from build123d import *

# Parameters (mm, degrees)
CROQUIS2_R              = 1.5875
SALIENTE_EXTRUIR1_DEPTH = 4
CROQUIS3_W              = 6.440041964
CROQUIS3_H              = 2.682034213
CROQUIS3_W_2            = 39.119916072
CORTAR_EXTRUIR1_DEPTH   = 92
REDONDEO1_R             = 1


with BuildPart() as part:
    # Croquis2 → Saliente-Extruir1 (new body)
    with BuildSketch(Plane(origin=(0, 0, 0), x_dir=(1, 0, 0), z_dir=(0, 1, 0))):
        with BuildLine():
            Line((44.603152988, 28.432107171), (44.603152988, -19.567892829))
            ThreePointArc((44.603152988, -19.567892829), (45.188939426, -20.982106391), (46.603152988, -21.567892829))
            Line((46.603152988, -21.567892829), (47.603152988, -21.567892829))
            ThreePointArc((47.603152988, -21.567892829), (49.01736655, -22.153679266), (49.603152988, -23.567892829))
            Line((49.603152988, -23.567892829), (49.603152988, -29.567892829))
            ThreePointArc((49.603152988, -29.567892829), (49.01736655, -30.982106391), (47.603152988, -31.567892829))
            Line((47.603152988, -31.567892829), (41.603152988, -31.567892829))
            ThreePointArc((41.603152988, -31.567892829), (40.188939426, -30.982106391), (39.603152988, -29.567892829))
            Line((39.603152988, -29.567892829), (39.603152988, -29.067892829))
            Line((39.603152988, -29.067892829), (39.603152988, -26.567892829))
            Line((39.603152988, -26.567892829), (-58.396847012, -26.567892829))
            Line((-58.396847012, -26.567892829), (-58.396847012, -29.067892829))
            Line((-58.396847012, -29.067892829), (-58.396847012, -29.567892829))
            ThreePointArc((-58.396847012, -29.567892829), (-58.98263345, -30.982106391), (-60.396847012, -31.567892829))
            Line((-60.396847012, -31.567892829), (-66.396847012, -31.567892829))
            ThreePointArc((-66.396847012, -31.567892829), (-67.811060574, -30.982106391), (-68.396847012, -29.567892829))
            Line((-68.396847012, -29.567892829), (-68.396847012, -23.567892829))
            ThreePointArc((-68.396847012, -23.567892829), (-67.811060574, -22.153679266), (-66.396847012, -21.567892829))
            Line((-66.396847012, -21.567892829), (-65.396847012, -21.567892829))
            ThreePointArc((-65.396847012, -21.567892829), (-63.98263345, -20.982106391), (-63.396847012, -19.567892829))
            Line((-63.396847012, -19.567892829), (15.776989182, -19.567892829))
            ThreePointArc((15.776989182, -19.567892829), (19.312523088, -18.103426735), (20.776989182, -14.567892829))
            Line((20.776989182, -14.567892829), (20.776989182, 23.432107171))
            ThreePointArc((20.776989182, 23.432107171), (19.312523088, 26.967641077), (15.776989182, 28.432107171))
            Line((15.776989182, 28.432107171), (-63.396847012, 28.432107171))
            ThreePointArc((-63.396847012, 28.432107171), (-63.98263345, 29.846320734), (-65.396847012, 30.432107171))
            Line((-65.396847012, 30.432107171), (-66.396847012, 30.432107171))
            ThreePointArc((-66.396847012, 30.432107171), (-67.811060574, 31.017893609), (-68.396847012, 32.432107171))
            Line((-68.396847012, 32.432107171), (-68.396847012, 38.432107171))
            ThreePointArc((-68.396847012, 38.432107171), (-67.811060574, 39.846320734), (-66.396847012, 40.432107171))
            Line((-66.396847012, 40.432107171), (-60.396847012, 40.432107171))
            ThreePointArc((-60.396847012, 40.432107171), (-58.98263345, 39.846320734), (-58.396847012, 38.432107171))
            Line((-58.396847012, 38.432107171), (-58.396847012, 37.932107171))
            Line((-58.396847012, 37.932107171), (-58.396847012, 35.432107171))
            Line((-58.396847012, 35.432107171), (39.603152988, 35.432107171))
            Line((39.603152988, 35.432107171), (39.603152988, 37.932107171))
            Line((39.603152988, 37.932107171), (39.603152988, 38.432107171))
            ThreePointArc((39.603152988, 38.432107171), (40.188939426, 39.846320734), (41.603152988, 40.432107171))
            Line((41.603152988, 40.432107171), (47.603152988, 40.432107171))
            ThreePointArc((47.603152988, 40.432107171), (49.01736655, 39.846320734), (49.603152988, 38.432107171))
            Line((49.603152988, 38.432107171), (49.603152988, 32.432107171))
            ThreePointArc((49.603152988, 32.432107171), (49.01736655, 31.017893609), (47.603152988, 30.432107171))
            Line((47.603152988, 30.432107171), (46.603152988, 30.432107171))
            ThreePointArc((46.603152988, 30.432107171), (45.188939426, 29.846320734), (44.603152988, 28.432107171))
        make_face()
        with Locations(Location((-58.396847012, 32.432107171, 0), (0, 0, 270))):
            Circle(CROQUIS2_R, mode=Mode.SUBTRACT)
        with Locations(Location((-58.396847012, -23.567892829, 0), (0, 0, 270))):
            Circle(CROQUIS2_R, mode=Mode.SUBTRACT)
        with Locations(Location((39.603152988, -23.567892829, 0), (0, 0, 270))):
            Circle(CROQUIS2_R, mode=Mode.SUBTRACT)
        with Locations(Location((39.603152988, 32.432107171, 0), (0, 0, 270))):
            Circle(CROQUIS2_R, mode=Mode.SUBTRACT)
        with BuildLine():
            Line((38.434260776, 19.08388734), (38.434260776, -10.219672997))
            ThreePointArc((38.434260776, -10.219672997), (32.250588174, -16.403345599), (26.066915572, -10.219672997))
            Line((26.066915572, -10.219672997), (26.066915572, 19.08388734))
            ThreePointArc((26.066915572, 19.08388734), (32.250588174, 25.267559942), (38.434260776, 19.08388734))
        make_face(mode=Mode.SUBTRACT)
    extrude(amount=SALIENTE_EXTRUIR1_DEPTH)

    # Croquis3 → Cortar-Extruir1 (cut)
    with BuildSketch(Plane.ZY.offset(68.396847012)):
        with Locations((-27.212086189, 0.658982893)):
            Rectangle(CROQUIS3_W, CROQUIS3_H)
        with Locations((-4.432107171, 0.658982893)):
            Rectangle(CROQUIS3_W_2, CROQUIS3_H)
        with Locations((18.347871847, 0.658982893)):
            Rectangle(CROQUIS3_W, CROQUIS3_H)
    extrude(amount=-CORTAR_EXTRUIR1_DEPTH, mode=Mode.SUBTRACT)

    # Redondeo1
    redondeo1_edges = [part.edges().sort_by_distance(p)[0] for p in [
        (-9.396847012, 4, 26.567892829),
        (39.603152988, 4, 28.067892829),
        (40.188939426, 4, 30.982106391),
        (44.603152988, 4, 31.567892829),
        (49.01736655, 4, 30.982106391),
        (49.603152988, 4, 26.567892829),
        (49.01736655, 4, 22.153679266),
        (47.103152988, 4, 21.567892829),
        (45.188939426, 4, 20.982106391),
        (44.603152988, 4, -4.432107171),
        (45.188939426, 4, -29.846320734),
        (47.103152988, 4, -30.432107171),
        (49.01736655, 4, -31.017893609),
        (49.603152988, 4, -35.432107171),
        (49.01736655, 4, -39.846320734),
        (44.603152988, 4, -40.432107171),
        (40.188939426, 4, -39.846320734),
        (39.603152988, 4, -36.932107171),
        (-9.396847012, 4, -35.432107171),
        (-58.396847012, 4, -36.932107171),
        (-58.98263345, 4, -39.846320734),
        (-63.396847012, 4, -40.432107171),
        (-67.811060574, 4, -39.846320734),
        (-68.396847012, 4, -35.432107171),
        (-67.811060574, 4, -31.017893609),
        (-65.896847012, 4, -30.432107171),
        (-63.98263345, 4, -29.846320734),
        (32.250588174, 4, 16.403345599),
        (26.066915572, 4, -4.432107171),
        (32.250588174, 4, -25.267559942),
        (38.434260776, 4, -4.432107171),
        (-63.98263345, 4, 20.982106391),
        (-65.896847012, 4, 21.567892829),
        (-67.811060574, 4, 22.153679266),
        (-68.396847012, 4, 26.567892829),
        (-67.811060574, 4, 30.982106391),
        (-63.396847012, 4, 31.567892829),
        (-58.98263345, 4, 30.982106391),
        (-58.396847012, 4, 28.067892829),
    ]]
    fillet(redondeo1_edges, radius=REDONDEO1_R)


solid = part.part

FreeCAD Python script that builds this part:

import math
import FreeCAD as App
import Part
import Sketcher

V = App.Vector


def edges_at(feature, points):
    """Names of the edges that pass closest to the given points."""
    edges = feature.Shape.Edges
    near = lambda p: min(range(len(edges)), key=lambda i: edges[i].distToShape(Part.Vertex(*p))[0])
    return sorted({f"Edge{near(p) + 1}" for p in points})

doc = App.newDocument("Part")
body = doc.addObject("PartDesign::Body", "Body")

# Sketch on XZ plane
sketch1 = body.newObject("Sketcher::SketchObject", "Sketch")
sketch1.AttachmentSupport = (doc.getObject("XZ_Plane"), [""])
sketch1.MapMode = "FlatFace"
sketch1.addGeometry([
    Part.LineSegment(V(44.603153, 19.567893, 0), V(44.603153, -28.432107, 0)),  # 0
    Part.ArcOfCircle(Part.Circle(V(46.603153, -28.432107, 0), V(0, 0, 1), 2), math.radians(180), math.radians(270)),  # 1
    Part.LineSegment(V(46.603153, -30.432107, 0), V(47.603153, -30.432107, 0)),  # 2
    Part.ArcOfCircle(Part.Circle(V(47.603153, -32.432107, 0), V(0, 0, 1), 2), math.radians(0), math.radians(90)),  # 3
    Part.LineSegment(V(49.603153, -32.432107, 0), V(49.603153, -38.432107, 0)),  # 4
    Part.ArcOfCircle(Part.Circle(V(47.603153, -38.432107, 0), V(0, 0, 1), 2), math.radians(-90), math.radians(0)),  # 5
    Part.LineSegment(V(47.603153, -40.432107, 0), V(41.603153, -40.432107, 0)),  # 6
    Part.ArcOfCircle(Part.Circle(V(41.603153, -38.432107, 0), V(0, 0, 1), 2), math.radians(180), math.radians(270)),  # 7
    Part.LineSegment(V(39.603153, -38.432107, 0), V(39.603153, -35.432107, 0)),  # 8
    Part.LineSegment(V(39.603153, -35.432107, 0), V(-58.396847, -35.432107, 0)),  # 9
    Part.LineSegment(V(-58.396847, -35.432107, 0), V(-58.396847, -38.432107, 0)),  # 10
    Part.ArcOfCircle(Part.Circle(V(-60.396847, -38.432107, 0), V(0, 0, 1), 2), math.radians(-90), math.radians(0)),  # 11
    Part.LineSegment(V(-60.396847, -40.432107, 0), V(-66.396847, -40.432107, 0)),  # 12
    Part.ArcOfCircle(Part.Circle(V(-66.396847, -38.432107, 0), V(0, 0, 1), 2), math.radians(180), math.radians(270)),  # 13
    Part.LineSegment(V(-68.396847, -38.432107, 0), V(-68.396847, -32.432107, 0)),  # 14
    Part.ArcOfCircle(Part.Circle(V(-66.396847, -32.432107, 0), V(0, 0, 1), 2), math.radians(90), math.radians(180)),  # 15
    Part.LineSegment(V(-66.396847, -30.432107, 0), V(-65.396847, -30.432107, 0)),  # 16
    Part.ArcOfCircle(Part.Circle(V(-65.396847, -28.432107, 0), V(0, 0, 1), 2), math.radians(-90), math.radians(0)),  # 17
    Part.LineSegment(V(-63.396847, -28.432107, 0), V(15.776989, -28.432107, 0)),  # 18
    Part.ArcOfCircle(Part.Circle(V(15.776989, -23.432107, 0), V(0, 0, 1), 5), math.radians(-90), math.radians(0)),  # 19
    Part.LineSegment(V(20.776989, -23.432107, 0), V(20.776989, 14.567893, 0)),  # 20
    Part.ArcOfCircle(Part.Circle(V(15.776989, 14.567893, 0), V(0, 0, 1), 5), math.radians(0), math.radians(90)),  # 21
    Part.LineSegment(V(15.776989, 19.567893, 0), V(-63.396847, 19.567893, 0)),  # 22
    Part.ArcOfCircle(Part.Circle(V(-65.396847, 19.567893, 0), V(0, 0, 1), 2), math.radians(0), math.radians(90)),  # 23
    Part.LineSegment(V(-65.396847, 21.567893, 0), V(-66.396847, 21.567893, 0)),  # 24
    Part.ArcOfCircle(Part.Circle(V(-66.396847, 23.567893, 0), V(0, 0, 1), 2), math.radians(180), math.radians(270)),  # 25
    Part.LineSegment(V(-68.396847, 23.567893, 0), V(-68.396847, 29.567893, 0)),  # 26
    Part.ArcOfCircle(Part.Circle(V(-66.396847, 29.567893, 0), V(0, 0, 1), 2), math.radians(90), math.radians(180)),  # 27
    Part.LineSegment(V(-66.396847, 31.567893, 0), V(-60.396847, 31.567893, 0)),  # 28
    Part.ArcOfCircle(Part.Circle(V(-60.396847, 29.567893, 0), V(0, 0, 1), 2), math.radians(0), math.radians(90)),  # 29
    Part.LineSegment(V(-58.396847, 29.567893, 0), V(-58.396847, 26.567893, 0)),  # 30
    Part.LineSegment(V(-58.396847, 26.567893, 0), V(39.603153, 26.567893, 0)),  # 31
    Part.LineSegment(V(39.603153, 26.567893, 0), V(39.603153, 29.567893, 0)),  # 32
    Part.ArcOfCircle(Part.Circle(V(41.603153, 29.567893, 0), V(0, 0, 1), 2), math.radians(90), math.radians(180)),  # 33
    Part.LineSegment(V(41.603153, 31.567893, 0), V(47.603153, 31.567893, 0)),  # 34
    Part.ArcOfCircle(Part.Circle(V(47.603153, 29.567893, 0), V(0, 0, 1), 2), math.radians(0), math.radians(90)),  # 35
    Part.LineSegment(V(49.603153, 29.567893, 0), V(49.603153, 23.567893, 0)),  # 36
    Part.ArcOfCircle(Part.Circle(V(47.603153, 23.567893, 0), V(0, 0, 1), 2), math.radians(-90), math.radians(0)),  # 37
    Part.LineSegment(V(47.603153, 21.567893, 0), V(46.603153, 21.567893, 0)),  # 38
    Part.ArcOfCircle(Part.Circle(V(46.603153, 19.567893, 0), V(0, 0, 1), 2), math.radians(90), math.radians(180)),  # 39
    Part.Circle(V(39.603153, 23.567893, 0), V(0, 0, 1), 1.5875),  # 40
    Part.Circle(V(-58.396847, 23.567893, 0), V(0, 0, 1), 1.5875),  # 41
    Part.LineSegment(V(38.434261, -19.083887, 0), V(38.434261, 10.219673, 0)),  # 42
    Part.ArcOfCircle(Part.Circle(V(32.250588, 10.219673, 0), V(0, 0, 1), 6.183673), math.radians(0), math.radians(180)),  # 43
    Part.LineSegment(V(26.066916, 10.219673, 0), V(26.066916, -19.083887, 0)),  # 44
    Part.ArcOfCircle(Part.Circle(V(32.250588, -19.083887, 0), V(0, 0, 1), 6.183673), math.radians(180), math.radians(360)),  # 45
    Part.Circle(V(39.603153, -32.432107, 0), V(0, 0, 1), 1.5875),  # 46
    Part.Circle(V(-58.396847, -32.432107, 0), V(0, 0, 1), 1.5875),  # 47
], False)
sketch1.addConstraint([
    Sketcher.Constraint("Tangent", 0, 2, 1, 1),
    Sketcher.Constraint("Tangent", 1, 2, 2, 1),
    Sketcher.Constraint("Tangent", 2, 2, 3, 2),
    Sketcher.Constraint("Tangent", 3, 1, 4, 1),
    Sketcher.Constraint("Tangent", 4, 2, 5, 2),
    Sketcher.Constraint("Tangent", 5, 1, 6, 1),
    Sketcher.Constraint("Tangent", 6, 2, 7, 2),
    Sketcher.Constraint("Tangent", 7, 1, 8, 1),
    Sketcher.Constraint("Coincident", 8, 2, 9, 1),
    Sketcher.Constraint("Coincident", 9, 2, 10, 1),
    Sketcher.Constraint("Tangent", 10, 2, 11, 2),
    Sketcher.Constraint("Tangent", 11, 1, 12, 1),
    Sketcher.Constraint("Tangent", 12, 2, 13, 2),
    Sketcher.Constraint("Tangent", 13, 1, 14, 1),
    Sketcher.Constraint("Tangent", 14, 2, 15, 2),
    Sketcher.Constraint("Tangent", 15, 1, 16, 1),
    Sketcher.Constraint("Tangent", 16, 2, 17, 1),
    Sketcher.Constraint("Coincident", 17, 2, 18, 1),
    Sketcher.Constraint("Tangent", 18, 2, 19, 1),
    Sketcher.Constraint("Tangent", 19, 2, 20, 1),
    Sketcher.Constraint("Tangent", 20, 2, 21, 1),
    Sketcher.Constraint("Tangent", 21, 2, 22, 1),
    Sketcher.Constraint("Coincident", 22, 2, 23, 1),
    Sketcher.Constraint("Tangent", 23, 2, 24, 1),
    Sketcher.Constraint("Tangent", 24, 2, 25, 2),
    Sketcher.Constraint("Tangent", 25, 1, 26, 1),
    Sketcher.Constraint("Tangent", 26, 2, 27, 2),
    Sketcher.Constraint("Tangent", 27, 1, 28, 1),
    Sketcher.Constraint("Tangent", 28, 2, 29, 2),
    Sketcher.Constraint("Tangent", 29, 1, 30, 1),
    Sketcher.Constraint("Coincident", 30, 2, 31, 1),
    Sketcher.Constraint("Coincident", 31, 2, 32, 1),
    Sketcher.Constraint("Tangent", 32, 2, 33, 2),
    Sketcher.Constraint("Tangent", 33, 1, 34, 1),
    Sketcher.Constraint("Tangent", 34, 2, 35, 2),
    Sketcher.Constraint("Tangent", 35, 1, 36, 1),
    Sketcher.Constraint("Tangent", 36, 2, 37, 2),
    Sketcher.Constraint("Tangent", 37, 1, 38, 1),
    Sketcher.Constraint("Tangent", 38, 2, 39, 1),
    Sketcher.Constraint("Tangent", 39, 2, 0, 1),
    Sketcher.Constraint("Tangent", 42, 2, 43, 1),
    Sketcher.Constraint("Tangent", 43, 2, 44, 1),
    Sketcher.Constraint("Tangent", 44, 2, 45, 1),
    Sketcher.Constraint("Tangent", 45, 2, 42, 1),
    Sketcher.Constraint("Vertical", 0),
    Sketcher.Constraint("Horizontal", 2),
    Sketcher.Constraint("Vertical", 4),
    Sketcher.Constraint("Horizontal", 6),
    Sketcher.Constraint("Vertical", 8),
    Sketcher.Constraint("Horizontal", 9),
    Sketcher.Constraint("Vertical", 10),
    Sketcher.Constraint("Horizontal", 12),
    Sketcher.Constraint("Vertical", 14),
    Sketcher.Constraint("Horizontal", 16),
    Sketcher.Constraint("Horizontal", 18),
    Sketcher.Constraint("Vertical", 20),
    Sketcher.Constraint("Horizontal", 22),
    Sketcher.Constraint("Horizontal", 24),
    Sketcher.Constraint("Vertical", 26),
    Sketcher.Constraint("Horizontal", 28),
    Sketcher.Constraint("Vertical", 30),
    Sketcher.Constraint("Horizontal", 31),
    Sketcher.Constraint("Vertical", 32),
    Sketcher.Constraint("Horizontal", 34),
    Sketcher.Constraint("Vertical", 36),
    Sketcher.Constraint("Horizontal", 38),
    Sketcher.Constraint("Vertical", 42),
    Sketcher.Constraint("Vertical", 44),
    Sketcher.Constraint("Equal", 1, 3),
    Sketcher.Constraint("Equal", 3, 5),
    Sketcher.Constraint("Equal", 5, 7),
    Sketcher.Constraint("Equal", 7, 11),
    Sketcher.Constraint("Equal", 11, 13),
    Sketcher.Constraint("Equal", 13, 15),
    Sketcher.Constraint("Equal", 15, 17),
    Sketcher.Constraint("Equal", 19, 21),
    Sketcher.Constraint("Equal", 17, 23),
    Sketcher.Constraint("Equal", 23, 25),
    Sketcher.Constraint("Equal", 25, 27),
    Sketcher.Constraint("Equal", 27, 29),
    Sketcher.Constraint("Equal", 29, 33),
    Sketcher.Constraint("Equal", 33, 35),
    Sketcher.Constraint("Equal", 35, 37),
    Sketcher.Constraint("Equal", 37, 39),
    Sketcher.Constraint("Equal", 40, 41),
    Sketcher.Constraint("Equal", 41, 46),
    Sketcher.Constraint("Equal", 46, 47),
    Sketcher.Constraint("Horizontal", 7, 3, 11, 3),
    Sketcher.Constraint("Horizontal", 3, 3, 15, 3),
    Sketcher.Constraint("Horizontal", 29, 3, 33, 3),
    Sketcher.Constraint("Horizontal", 25, 3, 37, 3),
    Sketcher.Constraint("Horizontal", 37, 3, 40, 3),
    Sketcher.Constraint("Horizontal", 40, 3, 41, 3),
    Sketcher.Constraint("Horizontal", 15, 3, 46, 3),
    Sketcher.Constraint("Horizontal", 46, 3, 47, 3),
    Sketcher.Constraint("Horizontal", 0, 2, 17, 2),
    Sketcher.Constraint("Horizontal", 39, 3, 21, 2),
    Sketcher.Constraint("Vertical", 17, 3, 23, 3),
    Sketcher.Constraint("Vertical", 15, 3, 25, 3),
    Sketcher.Constraint("Vertical", 11, 3, 29, 3),
    Sketcher.Constraint("Vertical", 7, 3, 33, 3),
    Sketcher.Constraint("Vertical", 5, 3, 35, 3),
    Sketcher.Constraint("Vertical", 40, 3, 46, 3),
    Sketcher.Constraint("Vertical", 41, 3, 47, 3),
    Sketcher.Constraint("Vertical", 46, 3, 7, 1),
    Sketcher.Constraint("Vertical", 47, 3, 9, 2),
    Sketcher.Constraint("Equal", 6, 12),
    Sketcher.Constraint("Equal", 2, 16),
    Sketcher.Constraint("Equal", 34, 4),
    Sketcher.Constraint("Equal", 14, 26),
    Sketcher.Constraint("Equal", 10, 30),
    Sketcher.Constraint("Radius", 1, 2.0),
    Sketcher.Constraint("Radius", 19, 5.0),
    Sketcher.Constraint("DistanceX", 2, 1, 2, 2, 1.0),
    Sketcher.Constraint("DistanceX", 6, 2, 6, 1, 6.0),
    Sketcher.Constraint("DistanceX", 9, 2, 9, 1, 98.0),
    Sketcher.Constraint("DistanceY", 0, 2, 0, 1, 48.0),
    Sketcher.Constraint("DistanceY", 8, 1, 8, 2, 3.0),
    Sketcher.Constraint("Diameter", 40, 3.175),
    Sketcher.Constraint("Radius", 43, 6.183673),
    Sketcher.Constraint("DistanceY", 42, 1, 42, 2, 29.30356),
    Sketcher.Constraint("DistanceX", 18, 1, 18, 2, 79.173836),
    Sketcher.Constraint("DistanceX", -1, 1, 19, 3, 15.776989),
    Sketcher.Constraint("DistanceX", -1, 1, 43, 3, 32.250588),
    Sketcher.Constraint("DistanceY", 1, 3, -1, 1, 28.432107),
    Sketcher.Constraint("DistanceY", -1, 1, 43, 3, 10.219673),
])
pad1 = body.newObject("PartDesign::Pad", "Pad")
pad1.Profile = sketch1
pad1.Length = 4
pad1.Reversed = True

# Sketch on YZ plane
sketch2 = body.newObject("Sketcher::SketchObject", "Sketch001")
sketch2.AttachmentSupport = (doc.getObject("YZ_Plane"), [""])
sketch2.MapMode = "FlatFace"
sketch2.AttachmentOffset = App.Placement(V(0, 0, -68.396847), App.Rotation())
sketch2.addGeometry([
    Part.LineSegment(V(2, -30.432107, 0), V(-0.682034, -30.432107, 0)),
    Part.LineSegment(V(-0.682034, -30.432107, 0), V(-0.682034, 21.567893, 0)),
    Part.LineSegment(V(-0.682034, 21.567893, 0), V(2, 21.567893, 0)),
    Part.LineSegment(V(2, 21.567893, 0), V(2, -30.432107, 0)),
], False)
sketch2.addConstraint([
    Sketcher.Constraint("Coincident", 0, 2, 1, 1),
    Sketcher.Constraint("Coincident", 1, 2, 2, 1),
    Sketcher.Constraint("Coincident", 2, 2, 3, 1),
    Sketcher.Constraint("Coincident", 3, 2, 0, 1),
    Sketcher.Constraint("Horizontal", 0),
    Sketcher.Constraint("Vertical", 1),
    Sketcher.Constraint("Horizontal", 2),
    Sketcher.Constraint("Vertical", 3),
    Sketcher.Constraint("DistanceY", 1, 1, 1, 2, 52.0),
    Sketcher.Constraint("DistanceX", -1, 1, 2, 2, 2.0),
    Sketcher.Constraint("DistanceX", 0, 2, 0, 1, 2.682034),
    Sketcher.Constraint("DistanceY", 0, 2, -1, 1, 30.432107),
])
pocket1 = body.newObject("PartDesign::Pocket", "Pocket")
pocket1.Profile = sketch2
pocket1.Length = 92
pocket1.Reversed = True
doc.recompute()

fillet = body.newObject("PartDesign::Fillet", "Fillet")
fillet.Base = (pocket1, edges_at(pocket1, [
    (-9.397, 4, 26.568),
    (39.603, 4, 28.068),
    (40.189, 4, 30.982),
    (44.603, 4, 31.568),
    (49.017, 4, 30.982),
    (49.603, 4, 26.568),
    (49.017, 4, 22.154),
    (47.103, 4, 21.568),
    (45.189, 4, 20.982),
    (44.603, 4, -4.432),
    (45.189, 4, -29.846),
    (47.103, 4, -30.432),
    (49.017, 4, -31.018),
    (49.603, 4, -35.432),
    (49.017, 4, -39.846),
    (44.603, 4, -40.432),
    (40.189, 4, -39.846),
    (39.603, 4, -36.932),
    (-9.397, 4, -35.432),
    (-58.397, 4, -36.932),
    (-58.983, 4, -39.846),
    (-63.397, 4, -40.432),
    (-67.811, 4, -39.846),
    (-68.397, 4, -35.432),
    (-67.811, 4, -31.018),
    (-65.897, 4, -30.432),
    (-63.983, 4, -29.846),
    (32.251, 4, 16.403),
    (26.067, 4, -4.432),
    (32.251, 4, -25.268),
    (38.434, 4, -4.432),
    (-63.983, 4, 20.982),
    (-65.897, 4, 21.568),
    (-67.811, 4, 22.154),
    (-68.397, 4, 26.568),
    (-67.811, 4, 30.982),
    (-63.397, 4, 31.568),
    (-58.983, 4, 30.982),
    (-58.397, 4, 28.068),
]))
fillet.Radius = 1

doc.recompute()
